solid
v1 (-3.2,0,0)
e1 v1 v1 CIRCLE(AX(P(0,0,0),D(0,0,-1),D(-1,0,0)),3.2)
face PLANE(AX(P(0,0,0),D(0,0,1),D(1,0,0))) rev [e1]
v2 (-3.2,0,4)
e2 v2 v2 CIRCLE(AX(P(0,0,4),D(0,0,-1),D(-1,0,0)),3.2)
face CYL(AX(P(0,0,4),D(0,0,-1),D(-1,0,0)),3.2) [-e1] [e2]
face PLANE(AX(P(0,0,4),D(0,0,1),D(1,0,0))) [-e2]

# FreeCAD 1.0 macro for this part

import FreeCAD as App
import Part
import Sketcher

V = App.Vector


def add_polygon(sketch, points):
    """Adds a closed chain of lines whose ends are joined by coincident constraints."""
    first, n = sketch.GeometryCount, len(points)
    for a, b in zip(points, points[1:] + points[:1]):
        sketch.addGeometry(Part.LineSegment(App.Vector(*a, 0), App.Vector(*b, 0)), False)
    for i in range(n):
        sketch.addConstraint(Sketcher.Constraint("Coincident", first + i, 2, first + (i + 1) % n, 1))

doc = App.newDocument("Part")
body = doc.addObject("PartDesign::Body", "Body")

sketch1 = body.newObject("Sketcher::SketchObject", "Sketch")
sketch1.AttachmentSupport = (doc.getObject("XY_Plane"), [""])
sketch1.MapMode = "FlatFace"
sketch1.addGeometry(Part.Circle(V(0, 0, 0), V(0, 0, 1), 6), False)
sketch1.addConstraint([
    Sketcher.Constraint("Coincident", 0, 3, -1, 1),
    Sketcher.Constraint("Diameter", 0, 13.0),
])
pad1 = body.newObject("PartDesign::Pad", "Pad")
pad1.Profile = sketch1
pad1.Length = 4

sketch2 = body.newObject("Sketcher::SketchObject", "Sketch001")
sketch2.AttachmentSupport = (doc.getObject("XY_Plane"), [""])
sketch2.MapMode = "FlatFace"
add_polygon(sketch2, [(9.4, 9.4), (9.4, -9.4), (-9.4, -9.4), (-9.4, 9.4)])
sketch2.addGeometry(Part.Circle(V(0, 0, 0), V(0, 0, 1), 3.2), False)
sketch2.addConstraint([
    Sketcher.Constraint("Vertical", 0),
    Sketcher.Constraint("Horizontal", 1),
    Sketcher.Constraint("Vertical", 2),
    Sketcher.Constraint("Horizontal", 3),
    Sketcher.Constraint("Coincident", 4, 3, -1, 1),
    Sketcher.Constraint("Symmetric", 0, 2, 2, 2, -1, 1),
    Sketcher.Constraint("Equal", 3, 0),
    Sketcher.Constraint("Diameter", 4, 6.4),
    Sketcher.Constraint("DistanceX", 1, 2, 1, 1, 18.762),
])
pocket1 = body.newObject("PartDesign::Pocket", "Pocket")
pocket1.Profile = sketch2
pocket1.Length = 4
pocket1.Reversed = True

doc.recompute()
